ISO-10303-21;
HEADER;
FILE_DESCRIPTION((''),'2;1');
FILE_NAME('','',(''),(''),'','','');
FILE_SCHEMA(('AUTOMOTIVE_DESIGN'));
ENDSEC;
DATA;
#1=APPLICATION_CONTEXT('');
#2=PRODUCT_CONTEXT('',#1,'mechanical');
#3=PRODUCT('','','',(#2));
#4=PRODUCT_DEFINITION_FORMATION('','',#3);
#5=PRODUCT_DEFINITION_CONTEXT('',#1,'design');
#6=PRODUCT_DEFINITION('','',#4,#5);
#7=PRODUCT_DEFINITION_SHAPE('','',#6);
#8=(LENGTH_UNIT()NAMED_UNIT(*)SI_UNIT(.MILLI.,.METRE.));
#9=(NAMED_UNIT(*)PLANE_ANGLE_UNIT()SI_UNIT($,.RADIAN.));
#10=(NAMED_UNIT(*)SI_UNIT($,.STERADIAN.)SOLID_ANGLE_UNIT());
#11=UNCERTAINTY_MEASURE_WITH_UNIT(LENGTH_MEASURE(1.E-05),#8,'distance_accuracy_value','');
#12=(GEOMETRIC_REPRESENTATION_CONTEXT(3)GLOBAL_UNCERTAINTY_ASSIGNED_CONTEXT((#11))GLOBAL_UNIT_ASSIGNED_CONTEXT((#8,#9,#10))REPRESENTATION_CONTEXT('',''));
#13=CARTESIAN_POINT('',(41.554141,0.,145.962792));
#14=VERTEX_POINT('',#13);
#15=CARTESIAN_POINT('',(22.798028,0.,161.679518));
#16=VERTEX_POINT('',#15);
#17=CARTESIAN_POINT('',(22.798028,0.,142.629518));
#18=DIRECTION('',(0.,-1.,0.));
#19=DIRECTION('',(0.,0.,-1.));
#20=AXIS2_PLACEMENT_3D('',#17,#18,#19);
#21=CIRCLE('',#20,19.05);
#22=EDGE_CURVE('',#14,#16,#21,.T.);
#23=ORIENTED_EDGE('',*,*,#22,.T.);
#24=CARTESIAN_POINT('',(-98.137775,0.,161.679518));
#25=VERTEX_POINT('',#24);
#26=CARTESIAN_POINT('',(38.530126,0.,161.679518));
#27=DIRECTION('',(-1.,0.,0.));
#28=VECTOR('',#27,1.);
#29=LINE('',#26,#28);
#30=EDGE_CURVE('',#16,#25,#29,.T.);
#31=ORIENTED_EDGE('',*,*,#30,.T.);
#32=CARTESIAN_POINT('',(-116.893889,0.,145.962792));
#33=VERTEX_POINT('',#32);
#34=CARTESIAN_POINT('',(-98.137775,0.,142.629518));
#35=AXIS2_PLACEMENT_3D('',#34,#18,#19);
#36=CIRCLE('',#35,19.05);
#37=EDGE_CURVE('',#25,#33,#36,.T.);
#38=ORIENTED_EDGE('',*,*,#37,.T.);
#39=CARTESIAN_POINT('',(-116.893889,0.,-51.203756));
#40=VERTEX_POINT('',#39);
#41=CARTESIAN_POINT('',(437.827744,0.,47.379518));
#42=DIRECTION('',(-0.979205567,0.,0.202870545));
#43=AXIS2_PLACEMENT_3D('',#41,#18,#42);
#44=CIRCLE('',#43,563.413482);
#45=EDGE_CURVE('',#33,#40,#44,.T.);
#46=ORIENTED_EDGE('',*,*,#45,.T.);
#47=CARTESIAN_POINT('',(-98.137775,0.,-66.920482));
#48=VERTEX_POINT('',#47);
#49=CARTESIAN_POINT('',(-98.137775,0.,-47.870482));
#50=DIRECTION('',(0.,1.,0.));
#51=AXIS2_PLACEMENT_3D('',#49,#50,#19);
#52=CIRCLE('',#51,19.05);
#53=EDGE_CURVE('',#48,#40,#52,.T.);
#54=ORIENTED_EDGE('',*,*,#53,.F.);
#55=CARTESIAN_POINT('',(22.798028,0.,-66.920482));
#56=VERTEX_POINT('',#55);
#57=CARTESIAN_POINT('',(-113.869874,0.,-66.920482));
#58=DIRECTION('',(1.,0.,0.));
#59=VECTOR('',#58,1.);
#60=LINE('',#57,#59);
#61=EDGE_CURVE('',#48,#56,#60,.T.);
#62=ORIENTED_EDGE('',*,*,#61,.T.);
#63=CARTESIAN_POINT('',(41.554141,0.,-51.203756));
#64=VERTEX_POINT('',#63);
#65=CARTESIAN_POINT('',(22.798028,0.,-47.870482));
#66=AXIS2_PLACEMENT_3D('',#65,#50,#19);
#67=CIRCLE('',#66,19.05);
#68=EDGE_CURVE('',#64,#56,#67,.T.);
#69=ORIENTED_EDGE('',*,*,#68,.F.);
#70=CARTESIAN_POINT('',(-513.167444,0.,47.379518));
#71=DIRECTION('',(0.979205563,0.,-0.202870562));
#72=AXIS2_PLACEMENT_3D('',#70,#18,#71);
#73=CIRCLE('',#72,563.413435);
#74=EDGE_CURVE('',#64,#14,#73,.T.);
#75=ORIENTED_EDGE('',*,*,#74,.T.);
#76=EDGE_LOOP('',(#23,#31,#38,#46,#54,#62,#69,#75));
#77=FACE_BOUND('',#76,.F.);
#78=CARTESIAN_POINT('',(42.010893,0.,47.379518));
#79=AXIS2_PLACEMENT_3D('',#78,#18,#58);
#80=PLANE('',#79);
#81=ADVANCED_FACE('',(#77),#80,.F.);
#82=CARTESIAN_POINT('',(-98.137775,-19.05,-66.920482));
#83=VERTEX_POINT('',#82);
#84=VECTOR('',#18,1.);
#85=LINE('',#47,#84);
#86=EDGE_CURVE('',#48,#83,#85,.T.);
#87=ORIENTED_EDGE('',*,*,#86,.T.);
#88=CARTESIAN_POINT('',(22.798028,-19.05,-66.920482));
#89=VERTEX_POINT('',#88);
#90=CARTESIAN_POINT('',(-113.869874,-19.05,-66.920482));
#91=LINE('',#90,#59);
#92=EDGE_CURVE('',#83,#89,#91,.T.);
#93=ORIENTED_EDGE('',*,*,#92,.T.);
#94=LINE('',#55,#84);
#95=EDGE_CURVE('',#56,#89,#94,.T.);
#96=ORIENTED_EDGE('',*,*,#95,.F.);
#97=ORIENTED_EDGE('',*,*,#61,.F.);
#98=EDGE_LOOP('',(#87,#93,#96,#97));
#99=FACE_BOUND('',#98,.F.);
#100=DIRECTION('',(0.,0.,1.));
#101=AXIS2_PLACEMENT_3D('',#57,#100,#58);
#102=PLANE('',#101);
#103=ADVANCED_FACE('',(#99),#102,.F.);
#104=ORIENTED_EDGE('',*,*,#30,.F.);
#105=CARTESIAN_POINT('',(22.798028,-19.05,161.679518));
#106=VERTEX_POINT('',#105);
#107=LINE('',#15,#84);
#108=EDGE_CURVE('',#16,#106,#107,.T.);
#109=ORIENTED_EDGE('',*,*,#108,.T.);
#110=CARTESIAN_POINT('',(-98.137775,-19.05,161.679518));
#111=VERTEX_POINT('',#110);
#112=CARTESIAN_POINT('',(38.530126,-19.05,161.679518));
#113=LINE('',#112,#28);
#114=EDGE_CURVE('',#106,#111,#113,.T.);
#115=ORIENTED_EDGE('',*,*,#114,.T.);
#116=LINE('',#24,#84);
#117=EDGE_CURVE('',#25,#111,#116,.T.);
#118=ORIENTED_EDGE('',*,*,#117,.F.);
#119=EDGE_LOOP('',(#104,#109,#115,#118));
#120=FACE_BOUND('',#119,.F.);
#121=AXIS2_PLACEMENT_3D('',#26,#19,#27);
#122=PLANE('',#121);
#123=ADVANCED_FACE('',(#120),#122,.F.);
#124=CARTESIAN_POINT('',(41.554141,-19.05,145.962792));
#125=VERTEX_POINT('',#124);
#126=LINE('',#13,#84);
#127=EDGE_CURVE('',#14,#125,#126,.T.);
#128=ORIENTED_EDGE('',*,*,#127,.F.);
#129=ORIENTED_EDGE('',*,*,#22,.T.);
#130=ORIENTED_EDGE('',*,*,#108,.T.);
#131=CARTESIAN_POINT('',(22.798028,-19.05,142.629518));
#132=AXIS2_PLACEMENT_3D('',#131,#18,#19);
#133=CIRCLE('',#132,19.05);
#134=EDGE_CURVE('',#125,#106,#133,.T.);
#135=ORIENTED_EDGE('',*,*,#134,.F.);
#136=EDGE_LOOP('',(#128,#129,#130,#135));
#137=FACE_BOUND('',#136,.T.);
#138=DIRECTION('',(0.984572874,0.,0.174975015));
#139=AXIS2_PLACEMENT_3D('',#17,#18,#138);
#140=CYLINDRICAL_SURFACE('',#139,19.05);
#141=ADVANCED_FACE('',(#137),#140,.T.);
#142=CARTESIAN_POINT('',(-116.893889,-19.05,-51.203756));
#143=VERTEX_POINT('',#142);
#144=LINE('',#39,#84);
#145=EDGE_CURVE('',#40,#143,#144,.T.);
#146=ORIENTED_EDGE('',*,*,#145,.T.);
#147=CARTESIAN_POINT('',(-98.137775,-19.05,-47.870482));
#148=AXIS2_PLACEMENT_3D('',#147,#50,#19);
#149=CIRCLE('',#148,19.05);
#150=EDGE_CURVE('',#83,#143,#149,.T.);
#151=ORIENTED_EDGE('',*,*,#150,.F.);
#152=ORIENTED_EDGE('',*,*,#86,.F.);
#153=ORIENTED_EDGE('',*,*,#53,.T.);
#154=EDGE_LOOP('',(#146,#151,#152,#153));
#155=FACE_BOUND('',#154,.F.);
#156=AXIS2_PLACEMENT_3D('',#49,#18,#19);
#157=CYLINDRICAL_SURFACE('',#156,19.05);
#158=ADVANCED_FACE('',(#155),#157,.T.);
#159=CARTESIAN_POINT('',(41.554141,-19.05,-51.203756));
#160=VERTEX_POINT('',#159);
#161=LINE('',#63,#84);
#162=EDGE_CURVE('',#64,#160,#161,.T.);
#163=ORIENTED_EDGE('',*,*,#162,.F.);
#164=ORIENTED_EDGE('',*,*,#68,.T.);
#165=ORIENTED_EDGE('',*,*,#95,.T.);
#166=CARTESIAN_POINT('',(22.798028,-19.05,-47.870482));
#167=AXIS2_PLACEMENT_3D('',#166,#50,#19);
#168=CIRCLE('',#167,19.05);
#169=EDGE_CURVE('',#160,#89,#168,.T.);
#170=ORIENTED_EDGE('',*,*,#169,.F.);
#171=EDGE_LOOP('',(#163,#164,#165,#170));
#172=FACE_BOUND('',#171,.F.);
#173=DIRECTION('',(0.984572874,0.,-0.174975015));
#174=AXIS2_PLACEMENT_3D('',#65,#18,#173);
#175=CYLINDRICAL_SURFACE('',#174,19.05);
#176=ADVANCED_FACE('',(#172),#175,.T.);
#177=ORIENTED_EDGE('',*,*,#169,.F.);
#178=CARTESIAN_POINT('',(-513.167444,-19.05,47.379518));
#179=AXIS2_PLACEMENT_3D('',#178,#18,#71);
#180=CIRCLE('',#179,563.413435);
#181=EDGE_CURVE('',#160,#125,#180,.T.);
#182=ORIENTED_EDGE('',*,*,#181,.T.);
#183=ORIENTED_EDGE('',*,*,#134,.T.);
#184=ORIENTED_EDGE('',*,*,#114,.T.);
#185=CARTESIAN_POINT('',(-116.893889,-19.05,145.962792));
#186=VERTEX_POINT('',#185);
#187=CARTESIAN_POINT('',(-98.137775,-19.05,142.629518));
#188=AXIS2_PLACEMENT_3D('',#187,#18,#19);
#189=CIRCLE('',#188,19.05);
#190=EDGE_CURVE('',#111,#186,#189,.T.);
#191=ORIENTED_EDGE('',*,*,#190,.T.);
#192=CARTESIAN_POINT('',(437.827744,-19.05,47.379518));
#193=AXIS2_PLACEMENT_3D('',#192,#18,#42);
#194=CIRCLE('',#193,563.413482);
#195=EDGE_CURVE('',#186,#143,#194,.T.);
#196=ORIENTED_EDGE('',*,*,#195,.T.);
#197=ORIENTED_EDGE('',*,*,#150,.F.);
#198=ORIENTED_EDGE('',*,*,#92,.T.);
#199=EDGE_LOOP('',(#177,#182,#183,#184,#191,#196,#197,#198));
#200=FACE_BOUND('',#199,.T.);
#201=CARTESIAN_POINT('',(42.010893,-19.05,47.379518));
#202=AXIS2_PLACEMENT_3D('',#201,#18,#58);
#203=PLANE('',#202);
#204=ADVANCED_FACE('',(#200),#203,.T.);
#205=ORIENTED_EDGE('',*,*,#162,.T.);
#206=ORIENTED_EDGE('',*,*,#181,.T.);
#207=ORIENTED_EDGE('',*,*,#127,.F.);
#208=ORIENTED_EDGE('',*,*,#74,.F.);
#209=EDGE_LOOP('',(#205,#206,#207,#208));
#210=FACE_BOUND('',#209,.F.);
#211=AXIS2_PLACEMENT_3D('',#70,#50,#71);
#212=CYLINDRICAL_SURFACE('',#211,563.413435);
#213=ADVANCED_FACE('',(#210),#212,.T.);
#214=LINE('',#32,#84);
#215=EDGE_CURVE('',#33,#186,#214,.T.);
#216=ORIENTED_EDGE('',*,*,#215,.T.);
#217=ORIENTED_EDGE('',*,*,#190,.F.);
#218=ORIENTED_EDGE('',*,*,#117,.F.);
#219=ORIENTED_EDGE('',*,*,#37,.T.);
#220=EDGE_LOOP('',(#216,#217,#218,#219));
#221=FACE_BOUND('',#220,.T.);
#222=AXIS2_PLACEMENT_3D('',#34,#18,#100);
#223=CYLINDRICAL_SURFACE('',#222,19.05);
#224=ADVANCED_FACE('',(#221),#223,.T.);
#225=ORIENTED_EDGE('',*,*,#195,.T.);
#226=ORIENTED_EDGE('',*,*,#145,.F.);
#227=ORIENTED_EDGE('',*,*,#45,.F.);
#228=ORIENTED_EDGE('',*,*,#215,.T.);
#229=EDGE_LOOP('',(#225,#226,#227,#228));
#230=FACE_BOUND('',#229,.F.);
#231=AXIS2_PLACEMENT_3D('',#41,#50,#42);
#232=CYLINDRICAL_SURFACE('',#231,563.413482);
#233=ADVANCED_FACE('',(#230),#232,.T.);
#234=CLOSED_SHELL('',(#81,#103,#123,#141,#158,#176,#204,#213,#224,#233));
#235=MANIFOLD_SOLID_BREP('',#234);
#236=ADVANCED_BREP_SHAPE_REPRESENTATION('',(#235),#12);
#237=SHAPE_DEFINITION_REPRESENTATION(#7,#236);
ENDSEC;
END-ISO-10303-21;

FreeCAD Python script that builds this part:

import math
import FreeCAD as App
import Part
import Sketcher

V = App.Vector
Q = App.Units.Quantity


def edges_at(feature, points):
    """Names of the edges that pass closest to the given points."""
    edges = feature.Shape.Edges
    near = lambda p: min(range(len(edges)), key=lambda i: edges[i].distToShape(Part.Vertex(*p))[0])
    return sorted({f"Edge{near(p) + 1}" for p in points})


def add_polygon(sketch, points):
    """Adds a closed chain of lines whose ends are joined by coincident constraints."""
    first, n = sketch.GeometryCount, len(points)
    for a, b in zip(points, points[1:] + points[:1]):
        sketch.addGeometry(Part.LineSegment(App.Vector(*a, 0), App.Vector(*b, 0)), False)
    for i in range(n):
        sketch.addConstraint(Sketcher.Constraint("Coincident", first + i, 2, first + (i + 1) % n, 1))

doc = App.newDocument("Part")
params = doc.addObject("Spreadsheet::Sheet", "Params")
for row, (alias, value) in enumerate([
    ("sketch1_width", "6 in"),
    ("sketch1_height", "9 in"),
    ("pad1_length", "0.75 in"),
    ("sketch2_height", "9 in"),
    ("pad2_length", "0.75 in"),
    ("sketch3_height", "9 in"),
    ("pad3_length", "0.75 in"),
    ("fillet_radius", "0.75 in"),
], start=1):
    params.set(f"A{row}", alias)
    params.set(f"B{row}", "=" + value)
    params.setAlias(f"B{row}", alias)

body = doc.addObject("PartDesign::Body", "Body")

# Sketch on XZ plane
sketch1 = body.newObject("Sketcher::SketchObject", "Sketch")
sketch1.AttachmentSupport = (doc.getObject("XZ_Plane"), [""])
sketch1.MapMode = "FlatFace"
add_polygon(sketch1, [(-113.869874, 161.679518), (-113.869874, -66.920482), (38.530126, -66.920482), (38.530126, 161.679518)])  # lines 0-3
sketch1.addConstraint([
    Sketcher.Constraint("Vertical", 0),
    Sketcher.Constraint("Horizontal", 1),
    Sketcher.Constraint("Vertical", 2),
    Sketcher.Constraint("Horizontal", 3),
    Sketcher.Constraint("DistanceX", 1, 1, 1, 2, Q("6 in")),
    Sketcher.Constraint("DistanceY", 0, 2, 0, 1, Q("9 in")),
    Sketcher.Constraint("DistanceY", -1, 1, 2, 2, Q("161.679518 mm")),
    Sketcher.Constraint("DistanceX", 0, 2, -1, 1, Q("113.869874 mm")),
])
sketch1.setExpression("Constraints[8]", "Params.sketch1_width")
sketch1.setExpression("Constraints[9]", "Params.sketch1_height")
pad1 = body.newObject("PartDesign::Pad", "Pad")
pad1.Profile = sketch1
pad1.setExpression("Length", "Params.pad1_length")

# Sketch on XZ plane
sketch2 = body.newObject("Sketcher::SketchObject", "Sketch001")
sketch2.AttachmentSupport = (doc.getObject("XZ_Plane"), [""])
sketch2.MapMode = "FlatFace"
sketch2.addGeometry([
    Part.LineSegment(V(-113.869874, -66.920482, 0), V(-113.869874, 161.679518, 0)),
    Part.ArcOfCircle(Part.Circle(V(437.827744, 47.379518, 0), V(0, 0, 1), 563.413482), math.radians(168.295129), math.radians(191.704871)),
], False)
sketch2.addConstraint([
    Sketcher.Constraint("Coincident", 0, 1, 1, 2),
    Sketcher.Constraint("Coincident", 1, 1, 0, 2),
    Sketcher.Constraint("Vertical", 0),
    Sketcher.Constraint("DistanceY", 0, 1, 0, 2, Q("9 in")),
    Sketcher.Constraint("Radius", 1, Q("563.413482 mm")),
    Sketcher.Constraint("DistanceX", -1, 1, 1, 3, Q("437.827744 mm")),
    Sketcher.Constraint("DistanceY", -1, 1, 1, 3, Q("47.379518 mm")),
])
sketch2.setExpression("Constraints[3]", "Params.sketch2_height")
pad2 = body.newObject("PartDesign::Pad", "Pad001")
pad2.Profile = sketch2
pad2.setExpression("Length", "Params.pad2_length")

# Sketch on XZ plane
sketch3 = body.newObject("Sketcher::SketchObject", "Sketch002")
sketch3.AttachmentSupport = (doc.getObject("XZ_Plane"), [""])
sketch3.MapMode = "FlatFace"
sketch3.addGeometry([
    Part.ArcOfCircle(Part.Circle(V(-513.167444, 47.379518, 0), V(0, 0, 1), 563.413435), math.radians(-11.704872), math.radians(11.704872)),
    Part.LineSegment(V(38.530126, 161.679518, 0), V(38.530126, -66.920482, 0)),
], False)
sketch3.addConstraint([
    Sketcher.Constraint("Coincident", 0, 1, 1, 2),
    Sketcher.Constraint("Coincident", 1, 1, 0, 2),
    Sketcher.Constraint("Vertical", 1),
    Sketcher.Constraint("DistanceY", 1, 2, 1, 1, Q("9 in")),
    Sketcher.Constraint("Radius", 0, Q("563.413435 mm")),
    Sketcher.Constraint("DistanceY", -1, 1, 1, 1, Q("161.679518 mm")),
    Sketcher.Constraint("DistanceX", 0, 3, -1, 1, Q("513.167444 mm")),
])
sketch3.setExpression("Constraints[3]", "Params.sketch3_height")
pad3 = body.newObject("PartDesign::Pad", "Pad002")
pad3.Profile = sketch3
pad3.setExpression("Length", "Params.pad3_length")
doc.recompute()

fillet = body.newObject("PartDesign::Fillet", "Fillet")
fillet.Base = (pad3, edges_at(pad3, [
    (-113.87, -9.525, 161.68),
    (38.53, -9.525, 161.68),
    (38.53, -9.525, -66.92),
    (-113.87, -9.525, -66.92),
]))
fillet.setExpression("Radius", "Params.fillet_radius")

doc.recompute()
